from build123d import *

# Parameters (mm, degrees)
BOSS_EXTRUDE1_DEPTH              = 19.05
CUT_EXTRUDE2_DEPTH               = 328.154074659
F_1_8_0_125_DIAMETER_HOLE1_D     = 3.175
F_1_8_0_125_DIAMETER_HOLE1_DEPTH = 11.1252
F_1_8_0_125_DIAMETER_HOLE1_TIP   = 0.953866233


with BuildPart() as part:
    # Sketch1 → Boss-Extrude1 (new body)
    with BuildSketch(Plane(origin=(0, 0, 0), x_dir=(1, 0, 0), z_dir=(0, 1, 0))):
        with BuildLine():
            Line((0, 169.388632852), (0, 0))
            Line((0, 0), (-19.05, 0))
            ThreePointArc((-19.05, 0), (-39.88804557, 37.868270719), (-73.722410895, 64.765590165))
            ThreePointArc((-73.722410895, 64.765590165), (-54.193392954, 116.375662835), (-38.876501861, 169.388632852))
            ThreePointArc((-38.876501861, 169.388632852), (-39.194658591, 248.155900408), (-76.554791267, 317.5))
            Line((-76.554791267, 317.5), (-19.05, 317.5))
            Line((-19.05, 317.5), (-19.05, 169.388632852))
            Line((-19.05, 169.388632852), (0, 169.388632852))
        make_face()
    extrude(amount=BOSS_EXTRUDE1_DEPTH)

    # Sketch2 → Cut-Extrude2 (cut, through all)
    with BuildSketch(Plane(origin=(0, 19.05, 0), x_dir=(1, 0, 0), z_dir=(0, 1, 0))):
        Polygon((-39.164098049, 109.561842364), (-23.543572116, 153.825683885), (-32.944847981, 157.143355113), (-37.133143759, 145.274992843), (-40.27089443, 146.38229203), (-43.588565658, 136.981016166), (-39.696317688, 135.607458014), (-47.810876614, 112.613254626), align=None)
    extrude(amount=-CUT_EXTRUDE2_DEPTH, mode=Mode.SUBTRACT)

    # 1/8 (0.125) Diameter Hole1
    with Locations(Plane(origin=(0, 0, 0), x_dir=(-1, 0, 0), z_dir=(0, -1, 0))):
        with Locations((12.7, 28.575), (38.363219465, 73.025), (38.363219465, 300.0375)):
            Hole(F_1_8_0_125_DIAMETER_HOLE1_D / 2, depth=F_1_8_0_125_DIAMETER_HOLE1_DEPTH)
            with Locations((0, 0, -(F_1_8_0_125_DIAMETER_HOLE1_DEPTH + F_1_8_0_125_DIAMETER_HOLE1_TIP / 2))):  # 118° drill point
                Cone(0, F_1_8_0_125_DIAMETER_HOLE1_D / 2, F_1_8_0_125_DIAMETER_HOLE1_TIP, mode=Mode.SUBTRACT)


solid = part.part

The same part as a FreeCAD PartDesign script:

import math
import FreeCAD as App
import Part
import Sketcher
Q = App.Units.Quantity

doc = App.newDocument("Part")
body = doc.addObject("PartDesign::Body", "Body")

sketch1 = body.newObject("Sketcher::SketchObject", "Sketch")
sketch1.AttachmentSupport = (doc.getObject("XZ_Plane"), [""])
sketch1.MapMode = "FlatFace"
sketch1.addGeometry(Part.LineSegment(App.Vector(0, 0, 0), App.Vector(0, -169.388633, 0)), False)
sketch1.addGeometry(Part.LineSegment(App.Vector(0, -169.388633, 0), App.Vector(-19.05, -169.388633, 0)), False)
sketch1.addGeometry(Part.LineSegment(App.Vector(-19.05, -169.388633, 0), App.Vector(-19.05, -317.5, 0)), False)
sketch1.addGeometry(Part.LineSegment(App.Vector(-19.05, -317.5, 0), App.Vector(-76.554791, -317.5, 0)), False)
sketch1.addGeometry(Part.ArcOfCircle(Part.Circle(App.Vector(-196.510005, -208.136196, 0), App.Vector(0, 0, 1), 162.325891), math.radians(-42.355596), math.radians(13.809962)), False)
sketch1.addGeometry(Part.ArcOfCircle(Part.Circle(App.Vector(-704.917093, -333.106684, 0), App.Vector(0, 0, 1), 685.867093), math.radians(13.809962), math.radians(23.0319)), False)
sketch1.addGeometry(Part.ArcOfCircle(Part.Circle(App.Vector(-123.825, 32.987807, 0), App.Vector(0, 0, 1), 109.845328), math.radians(-62.863016), math.radians(-17.476309)), False)
sketch1.addGeometry(Part.LineSegment(App.Vector(-19.05, 0, 0), App.Vector(0, 0, 0)), False)
sketch1.addConstraint(Sketcher.Constraint("Coincident", 0, 2, 1, 1))
sketch1.addConstraint(Sketcher.Constraint("Coincident", 1, 2, 2, 1))
sketch1.addConstraint(Sketcher.Constraint("Coincident", 2, 2, 3, 1))
sketch1.addConstraint(Sketcher.Constraint("Coincident", 3, 2, 4, 1))
sketch1.addConstraint(Sketcher.Constraint("Tangent", 4, 2, 5, 1))
sketch1.addConstraint(Sketcher.Constraint("Coincident", 5, 2, 6, 1))
sketch1.addConstraint(Sketcher.Constraint("Coincident", 6, 2, 7, 1))
sketch1.addConstraint(Sketcher.Constraint("Coincident", 7, 2, 0, 1))
sketch1.addConstraint(Sketcher.Constraint("Vertical", 0))
sketch1.addConstraint(Sketcher.Constraint("Horizontal", 1))
sketch1.addConstraint(Sketcher.Constraint("Vertical", 2))
sketch1.addConstraint(Sketcher.Constraint("Horizontal", 3))
sketch1.addConstraint(Sketcher.Constraint("Horizontal", 7))
sketch1.addConstraint(Sketcher.Constraint("Coincident", 7, 2, -1, 1))
sketch1.addConstraint(Sketcher.Constraint("Horizontal", 1, 2, 4, 2))
sketch1.addConstraint(Sketcher.Constraint("Vertical", 2, 2, 6, 2))
sketch1.addConstraint(Sketcher.Constraint("DistanceX", 1, 2, 1, 1, Q("0.75 in")))
sketch1.addConstraint(Sketcher.Constraint("DistanceY", 2, 2, -1, 1, Q("12.5 in")))
sketch1.addConstraint(Sketcher.Constraint("DistanceX", 6, 3, -1, 1, Q("4.875 in")))
sketch1.addConstraint(Sketcher.Constraint("Radius", 4, Q("162.325891 mm")))
sketch1.addConstraint(Sketcher.Constraint("Radius", 5, Q("685.867093 mm")))
sketch1.addConstraint(Sketcher.Constraint("Radius", 6, Q("109.845328 mm")))
sketch1.addConstraint(Sketcher.Constraint("DistanceX", 3, 2, 3, 1, Q("57.504791 mm")))
sketch1.addConstraint(Sketcher.Constraint("DistanceX", 4, 2, -1, 1, Q("38.876502 mm")))
sketch1.addConstraint(Sketcher.Constraint("DistanceY", 0, 2, 0, 1, Q("169.388633 mm")))
pad1 = body.newObject("PartDesign::Pad", "Pad")
pad1.Profile = sketch1
pad1.Length = Q("0.75 in")
pad1.Reversed = True

sketch2 = body.newObject("Sketcher::SketchObject", "Sketch001")
sketch2.AttachmentSupport = (doc.getObject("XZ_Plane"), [""])
sketch2.MapMode = "FlatFace"
sketch2.AttachmentOffset = App.Placement(App.Vector(0, 0, -0.75 * 25.4), App.Rotation())
sketch2.addGeometry(Part.LineSegment(App.Vector(-39.164098, -109.561842, 0), App.Vector(-23.543572, -153.825684, 0)), False)
sketch2.addGeometry(Part.LineSegment(App.Vector(-23.543572, -153.825684, 0), App.Vector(-32.944848, -157.143355, 0)), False)
sketch2.addGeometry(Part.LineSegment(App.Vector(-32.944848, -157.143355, 0), App.Vector(-37.133144, -145.274993, 0)), False)
sketch2.addGeometry(Part.LineSegment(App.Vector(-37.133144, -145.274993, 0), App.Vector(-40.270894, -146.382292, 0)), False)
sketch2.addGeometry(Part.LineSegment(App.Vector(-40.270894, -146.382292, 0), App.Vector(-43.588566, -136.981016, 0)), False)
sketch2.addGeometry(Part.LineSegment(App.Vector(-43.588566, -136.981016, 0), App.Vector(-39.696318, -135.607458, 0)), False)
sketch2.addGeometry(Part.LineSegment(App.Vector(-39.696318, -135.607458, 0), App.Vector(-47.810877, -112.613255, 0)), False)
sketch2.addGeometry(Part.LineSegment(App.Vector(-47.810877, -112.613255, 0), App.Vector(-39.164098, -109.561842, 0)), False)
sketch2.addConstraint(Sketcher.Constraint("Coincident", 0, 2, 1, 1))
sketch2.addConstraint(Sketcher.Constraint("Coincident", 1, 2, 2, 1))
sketch2.addConstraint(Sketcher.Constraint("Coincident", 2, 2, 3, 1))
sketch2.addConstraint(Sketcher.Constraint("Coincident", 3, 2, 4, 1))
sketch2.addConstraint(Sketcher.Constraint("Coincident", 4, 2, 5, 1))
sketch2.addConstraint(Sketcher.Constraint("Coincident", 5, 2, 6, 1))
sketch2.addConstraint(Sketcher.Constraint("Coincident", 6, 2, 7, 1))
sketch2.addConstraint(Sketcher.Constraint("Coincident", 7, 2, 0, 1))
sketch2.addConstraint(Sketcher.Constraint("Perpendicular", 0, 1))
sketch2.addConstraint(Sketcher.Constraint("Perpendicular", 1, 2))
sketch2.addConstraint(Sketcher.Constraint("Perpendicular", 2, 3))
sketch2.addConstraint(Sketcher.Constraint("Perpendicular", 3, 4))
sketch2.addConstraint(Sketcher.Constraint("Perpendicular", 4, 5))
sketch2.addConstraint(Sketcher.Constraint("Perpendicular", 5, 6))
sketch2.addConstraint(Sketcher.Constraint("Perpendicular", 6, 7))
sketch2.addConstraint(Sketcher.Constraint("Equal", 1, 4))
sketch2.addConstraint(Sketcher.Constraint("Distance", 6, Q("0.96 in")))
sketch2.addConstraint(Sketcher.Constraint("Distance", 0, Q("1.848 in")))
sketch2.addConstraint(Sketcher.Constraint("Distance", 3, Q("0.131 in")))
sketch2.addConstraint(Sketcher.Constraint("Distance", 7, Q("0.361 in")))
sketch2.addConstraint(Sketcher.Constraint("Distance", 1, Q("0.3925 in")))
sketch2.addConstraint(Sketcher.Constraint("DistanceX", 7, 2, -1, 1, Q("39.164098 mm")))
sketch2.addConstraint(Sketcher.Constraint("DistanceY", 3, 2, 2, 2, Q("1.107299 mm")))
sketch2.addConstraint(Sketcher.Constraint("DistanceY", 5, 2, -1, 1, Q("135.607458 mm")))
pocket1 = body.newObject("PartDesign::Pocket", "Pocket")
pocket1.Profile = sketch2
pocket1.Type = "ThroughAll"
pocket1.Reversed = True

sketch3 = body.newObject("Sketcher::SketchObject", "Sketch002")
sketch3.AttachmentSupport = (doc.getObject("XZ_Plane"), [""])
sketch3.MapMode = "FlatFace"
sketch3.addGeometry(Part.Circle(App.Vector(-12.7, -28.575, 0), App.Vector(0, 0, 1), 1.5875), False)
sketch3.addGeometry(Part.Circle(App.Vector(-38.363219, -73.025, 0), App.Vector(0, 0, 1), 1.5875), False)
sketch3.addGeometry(Part.Circle(App.Vector(-38.363219, -300.0375, 0), App.Vector(0, 0, 1), 1.5875), False)
sketch3.addConstraint(Sketcher.Constraint("Equal", 0, 1))
sketch3.addConstraint(Sketcher.Constraint("Equal", 1, 2))
sketch3.addConstraint(Sketcher.Constraint("Vertical", 1, 3, 2, 3))
sketch3.addConstraint(Sketcher.Constraint("Diameter", 0, Q("0.125 in")))
sketch3.addConstraint(Sketcher.Constraint("DistanceX", 0, 3, -1, 1, Q("0.5 in")))
sketch3.addConstraint(Sketcher.Constraint("DistanceY", 1, 3, 0, 3, Q("1.75 in")))
sketch3.addConstraint(Sketcher.Constraint("DistanceY", 0, 3, -1, 1, Q("1.125 in")))
sketch3.addConstraint(Sketcher.Constraint("DistanceY", 2, 3, -1, 1, Q("11.8125 in")))
sketch3.addConstraint(Sketcher.Constraint("DistanceX", 1, 3, -1, 1, Q("38.363219 mm")))
doc.recompute()
hole = body.newObject("PartDesign::Hole", "Hole")
hole.Profile = sketch3
hole.ThreadType = "None"
hole.Diameter = Q("0.125 in")
hole.DepthType = "Dimension"
hole.Depth = Q("0.438 in")
hole.DrillPoint = "Angled"
hole.DrillPointAngle = 118

doc.recompute()
